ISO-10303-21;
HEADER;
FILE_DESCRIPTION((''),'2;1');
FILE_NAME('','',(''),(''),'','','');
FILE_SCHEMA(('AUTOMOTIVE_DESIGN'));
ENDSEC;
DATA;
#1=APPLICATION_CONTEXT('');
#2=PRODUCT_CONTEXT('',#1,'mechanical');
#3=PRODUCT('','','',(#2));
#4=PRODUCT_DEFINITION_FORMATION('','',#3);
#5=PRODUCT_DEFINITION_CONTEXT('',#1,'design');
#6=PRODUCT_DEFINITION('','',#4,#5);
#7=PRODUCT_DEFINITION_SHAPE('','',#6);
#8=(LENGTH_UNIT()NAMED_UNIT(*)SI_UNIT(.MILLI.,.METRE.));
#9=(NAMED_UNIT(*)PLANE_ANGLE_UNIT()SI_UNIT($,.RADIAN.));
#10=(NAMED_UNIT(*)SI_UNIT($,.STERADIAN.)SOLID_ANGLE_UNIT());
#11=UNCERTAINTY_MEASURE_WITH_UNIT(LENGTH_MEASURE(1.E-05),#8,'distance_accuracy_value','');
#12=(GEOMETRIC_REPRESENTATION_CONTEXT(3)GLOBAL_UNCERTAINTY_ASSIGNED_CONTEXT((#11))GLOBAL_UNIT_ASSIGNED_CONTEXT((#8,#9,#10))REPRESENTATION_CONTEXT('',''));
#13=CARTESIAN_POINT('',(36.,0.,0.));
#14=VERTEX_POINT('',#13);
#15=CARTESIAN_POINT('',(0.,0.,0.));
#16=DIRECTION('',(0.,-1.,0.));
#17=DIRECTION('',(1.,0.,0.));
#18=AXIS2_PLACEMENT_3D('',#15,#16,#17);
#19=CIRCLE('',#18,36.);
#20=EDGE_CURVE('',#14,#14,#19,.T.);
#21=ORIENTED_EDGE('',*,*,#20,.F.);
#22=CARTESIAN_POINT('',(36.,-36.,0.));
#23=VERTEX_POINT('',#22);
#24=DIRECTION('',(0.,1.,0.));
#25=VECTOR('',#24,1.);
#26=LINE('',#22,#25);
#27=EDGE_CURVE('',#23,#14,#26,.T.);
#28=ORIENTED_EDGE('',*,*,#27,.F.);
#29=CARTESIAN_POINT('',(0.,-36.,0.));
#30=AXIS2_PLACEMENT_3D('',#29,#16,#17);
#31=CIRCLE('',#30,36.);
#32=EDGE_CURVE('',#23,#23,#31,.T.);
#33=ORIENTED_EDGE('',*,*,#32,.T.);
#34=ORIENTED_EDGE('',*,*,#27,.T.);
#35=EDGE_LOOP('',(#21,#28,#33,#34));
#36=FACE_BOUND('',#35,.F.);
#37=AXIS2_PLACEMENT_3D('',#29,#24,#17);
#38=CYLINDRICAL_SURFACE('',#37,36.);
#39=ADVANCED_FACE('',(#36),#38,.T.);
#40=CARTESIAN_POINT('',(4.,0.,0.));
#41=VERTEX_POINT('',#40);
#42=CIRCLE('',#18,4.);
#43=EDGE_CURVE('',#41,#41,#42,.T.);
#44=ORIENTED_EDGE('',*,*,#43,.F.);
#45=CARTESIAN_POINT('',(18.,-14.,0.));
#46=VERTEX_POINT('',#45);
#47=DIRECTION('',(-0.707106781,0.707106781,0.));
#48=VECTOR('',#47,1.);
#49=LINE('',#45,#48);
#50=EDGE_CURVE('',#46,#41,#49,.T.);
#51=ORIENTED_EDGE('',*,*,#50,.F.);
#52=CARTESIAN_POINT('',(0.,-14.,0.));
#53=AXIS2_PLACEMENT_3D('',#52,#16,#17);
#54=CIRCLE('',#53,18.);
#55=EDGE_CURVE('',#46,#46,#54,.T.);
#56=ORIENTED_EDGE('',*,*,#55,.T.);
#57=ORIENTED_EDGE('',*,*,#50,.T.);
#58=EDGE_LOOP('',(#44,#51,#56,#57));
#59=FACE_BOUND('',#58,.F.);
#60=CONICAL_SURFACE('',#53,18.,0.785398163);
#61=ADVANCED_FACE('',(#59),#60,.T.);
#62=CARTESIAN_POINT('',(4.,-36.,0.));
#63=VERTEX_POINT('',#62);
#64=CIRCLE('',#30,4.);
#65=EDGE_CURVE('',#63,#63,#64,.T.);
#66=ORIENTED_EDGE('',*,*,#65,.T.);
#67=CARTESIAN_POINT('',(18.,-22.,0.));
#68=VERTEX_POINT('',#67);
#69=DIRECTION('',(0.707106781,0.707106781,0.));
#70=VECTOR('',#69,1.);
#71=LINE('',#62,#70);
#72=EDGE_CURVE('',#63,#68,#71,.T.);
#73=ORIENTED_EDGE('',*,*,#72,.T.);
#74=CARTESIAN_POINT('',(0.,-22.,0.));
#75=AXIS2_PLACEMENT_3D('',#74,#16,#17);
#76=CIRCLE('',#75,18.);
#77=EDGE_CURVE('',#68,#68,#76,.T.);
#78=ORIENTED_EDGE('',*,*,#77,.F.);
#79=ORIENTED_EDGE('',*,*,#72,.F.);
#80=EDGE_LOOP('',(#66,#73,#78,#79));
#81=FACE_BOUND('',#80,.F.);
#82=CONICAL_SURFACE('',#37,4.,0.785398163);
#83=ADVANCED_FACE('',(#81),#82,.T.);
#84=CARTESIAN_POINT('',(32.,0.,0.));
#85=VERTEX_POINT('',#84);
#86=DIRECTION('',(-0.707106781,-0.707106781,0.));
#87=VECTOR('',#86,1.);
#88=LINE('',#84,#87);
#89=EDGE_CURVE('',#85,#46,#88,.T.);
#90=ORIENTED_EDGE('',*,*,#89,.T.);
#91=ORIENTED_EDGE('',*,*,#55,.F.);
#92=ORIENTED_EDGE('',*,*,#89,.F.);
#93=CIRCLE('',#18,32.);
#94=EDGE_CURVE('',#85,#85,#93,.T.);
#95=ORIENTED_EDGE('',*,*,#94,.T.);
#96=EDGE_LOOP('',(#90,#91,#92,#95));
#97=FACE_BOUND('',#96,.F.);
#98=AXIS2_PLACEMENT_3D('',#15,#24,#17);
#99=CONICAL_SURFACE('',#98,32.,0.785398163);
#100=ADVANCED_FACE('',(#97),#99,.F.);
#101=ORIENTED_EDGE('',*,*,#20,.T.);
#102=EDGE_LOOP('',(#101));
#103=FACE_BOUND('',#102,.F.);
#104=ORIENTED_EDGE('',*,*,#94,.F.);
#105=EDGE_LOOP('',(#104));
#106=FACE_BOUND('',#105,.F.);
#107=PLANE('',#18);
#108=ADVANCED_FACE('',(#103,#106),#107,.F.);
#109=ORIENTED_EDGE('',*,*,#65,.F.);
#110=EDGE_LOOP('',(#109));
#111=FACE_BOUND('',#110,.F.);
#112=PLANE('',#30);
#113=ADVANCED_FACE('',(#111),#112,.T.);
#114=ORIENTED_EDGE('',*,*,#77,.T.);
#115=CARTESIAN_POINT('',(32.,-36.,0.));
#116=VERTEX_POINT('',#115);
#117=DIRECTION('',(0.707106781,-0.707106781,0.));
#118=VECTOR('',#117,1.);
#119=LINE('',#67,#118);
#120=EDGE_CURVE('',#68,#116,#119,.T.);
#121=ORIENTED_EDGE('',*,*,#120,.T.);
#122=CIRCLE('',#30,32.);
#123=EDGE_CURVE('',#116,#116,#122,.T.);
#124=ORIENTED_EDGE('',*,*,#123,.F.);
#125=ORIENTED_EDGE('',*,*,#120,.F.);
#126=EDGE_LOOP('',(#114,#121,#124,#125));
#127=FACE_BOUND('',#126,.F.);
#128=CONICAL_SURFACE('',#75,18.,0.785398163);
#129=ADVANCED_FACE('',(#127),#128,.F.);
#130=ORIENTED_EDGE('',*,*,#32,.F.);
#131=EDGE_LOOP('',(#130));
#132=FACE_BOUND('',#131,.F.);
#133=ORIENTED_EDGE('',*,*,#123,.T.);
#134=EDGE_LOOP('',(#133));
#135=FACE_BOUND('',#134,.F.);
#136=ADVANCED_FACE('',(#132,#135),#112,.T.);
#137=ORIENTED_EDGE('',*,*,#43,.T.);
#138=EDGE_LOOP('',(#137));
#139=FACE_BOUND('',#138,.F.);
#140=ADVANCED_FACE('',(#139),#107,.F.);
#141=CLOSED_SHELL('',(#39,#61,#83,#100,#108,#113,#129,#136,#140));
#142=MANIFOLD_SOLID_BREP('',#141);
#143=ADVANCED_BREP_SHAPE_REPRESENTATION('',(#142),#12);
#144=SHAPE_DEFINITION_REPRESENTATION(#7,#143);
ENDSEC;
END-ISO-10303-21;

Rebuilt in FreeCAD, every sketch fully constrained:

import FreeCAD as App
import Part
import Sketcher

V = App.Vector

doc = App.newDocument("Part")
body = doc.addObject("PartDesign::Body", "Body")

# Sketch on XY plane
sketch1 = body.newObject("Sketcher::SketchObject", "Sketch")
sketch1.AttachmentSupport = (doc.getObject("XY_Plane"), [""])
sketch1.MapMode = "FlatFace"
sketch1.addGeometry([
    Part.LineSegment(V(4, 0, 0), V(0, 0, 0)),  # 0
    Part.LineSegment(V(0, 0, 0), V(0, -36, 0)),  # 1
    Part.LineSegment(V(0, -36, 0), V(4, -36, 0)),  # 2
    Part.LineSegment(V(4, -36, 0), V(18, -22, 0)),  # 3
    Part.LineSegment(V(18, -22, 0), V(32, -36, 0)),  # 4
    Part.LineSegment(V(32, -36, 0), V(36, -36, 0)),  # 5
    Part.LineSegment(V(36, -36, 0), V(36, 0, 0)),  # 6
    Part.LineSegment(V(36, 0, 0), V(32, 0, 0)),  # 7
    Part.LineSegment(V(32, 0, 0), V(18, -14, 0)),  # 8
    Part.LineSegment(V(18, -14, 0), V(4, 0, 0)),  # 9
], False)
sketch1.addConstraint([
    Sketcher.Constraint("Coincident", 0, 2, 1, 1),
    Sketcher.Constraint("Coincident", 1, 2, 2, 1),
    Sketcher.Constraint("Coincident", 2, 2, 3, 1),
    Sketcher.Constraint("Coincident", 3, 2, 4, 1),
    Sketcher.Constraint("Coincident", 4, 2, 5, 1),
    Sketcher.Constraint("Coincident", 5, 2, 6, 1),
    Sketcher.Constraint("Coincident", 6, 2, 7, 1),
    Sketcher.Constraint("Coincident", 7, 2, 8, 1),
    Sketcher.Constraint("Coincident", 8, 2, 9, 1),
    Sketcher.Constraint("Coincident", 9, 2, 0, 1),
    Sketcher.Constraint("Horizontal", 0),
    Sketcher.Constraint("Vertical", 1),
    Sketcher.Constraint("Horizontal", 2),
    Sketcher.Constraint("Horizontal", 5),
    Sketcher.Constraint("Vertical", 6),
    Sketcher.Constraint("Horizontal", 7),
    Sketcher.Constraint("Coincident", 0, 2, -1, 1),
    Sketcher.Constraint("PointOnObject", 6, 2, -1),
    Sketcher.Constraint("Perpendicular", 3, 4),
    Sketcher.Constraint("Perpendicular", 4, 8),
    Sketcher.Constraint("Perpendicular", 8, 9),
    Sketcher.Constraint("Horizontal", 2, 2, 4, 2),
    Sketcher.Constraint("Vertical", 4, 2, 7, 2),
    Sketcher.Constraint("Vertical", 3, 2, 8, 2),
    Sketcher.Constraint("Vertical", 2, 2, 9, 2),
    Sketcher.Constraint("Equal", 2, 5),
    Sketcher.Constraint("DistanceX", 0, 2, 0, 1, 4.0),
    Sketcher.Constraint("DistanceY", 1, 2, 1, 1, 36.0),
    Sketcher.Constraint("DistanceX", -1, 1, 3, 2, 18.0),
])
revolution = body.newObject("PartDesign::Revolution", "Revolution")
revolution.Profile = sketch1
revolution.ReferenceAxis = (sketch1, ["V_Axis"])
revolution.Angle = 360

doc.recompute()
